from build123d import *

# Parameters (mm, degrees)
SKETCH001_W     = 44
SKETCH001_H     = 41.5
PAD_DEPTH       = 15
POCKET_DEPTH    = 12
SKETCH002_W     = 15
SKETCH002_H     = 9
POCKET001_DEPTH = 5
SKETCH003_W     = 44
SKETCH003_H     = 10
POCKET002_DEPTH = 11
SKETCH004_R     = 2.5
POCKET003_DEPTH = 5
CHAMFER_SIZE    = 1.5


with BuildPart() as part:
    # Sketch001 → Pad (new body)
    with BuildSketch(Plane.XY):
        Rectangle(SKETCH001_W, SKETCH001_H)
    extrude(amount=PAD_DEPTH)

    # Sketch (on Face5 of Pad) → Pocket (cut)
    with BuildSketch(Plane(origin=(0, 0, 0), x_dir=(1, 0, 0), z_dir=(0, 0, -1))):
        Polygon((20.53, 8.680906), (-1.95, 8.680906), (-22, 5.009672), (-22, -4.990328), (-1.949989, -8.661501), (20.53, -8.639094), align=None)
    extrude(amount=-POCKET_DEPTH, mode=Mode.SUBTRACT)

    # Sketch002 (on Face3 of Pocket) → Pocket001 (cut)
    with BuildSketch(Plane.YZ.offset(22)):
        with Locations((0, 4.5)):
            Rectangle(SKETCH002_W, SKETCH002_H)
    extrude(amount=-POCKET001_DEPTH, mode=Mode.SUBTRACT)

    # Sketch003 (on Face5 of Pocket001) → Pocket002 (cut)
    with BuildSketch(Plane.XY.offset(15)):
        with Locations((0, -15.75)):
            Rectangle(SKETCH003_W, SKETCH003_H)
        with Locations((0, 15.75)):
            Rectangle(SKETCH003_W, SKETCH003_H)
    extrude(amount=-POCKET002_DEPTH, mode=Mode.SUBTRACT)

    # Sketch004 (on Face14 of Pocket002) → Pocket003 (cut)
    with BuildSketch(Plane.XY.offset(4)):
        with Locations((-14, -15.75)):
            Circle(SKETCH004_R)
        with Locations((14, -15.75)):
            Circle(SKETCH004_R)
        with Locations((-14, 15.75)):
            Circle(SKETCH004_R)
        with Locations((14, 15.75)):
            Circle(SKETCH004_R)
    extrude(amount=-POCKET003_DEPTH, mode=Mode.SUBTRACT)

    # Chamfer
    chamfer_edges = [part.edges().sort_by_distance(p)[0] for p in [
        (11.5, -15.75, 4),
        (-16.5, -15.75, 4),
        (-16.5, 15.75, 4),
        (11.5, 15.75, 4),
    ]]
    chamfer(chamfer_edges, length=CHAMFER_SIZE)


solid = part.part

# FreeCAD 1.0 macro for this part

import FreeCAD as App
import Part
import Sketcher

V = App.Vector
Q = App.Units.Quantity


def edges_at(feature, points):
    """Names of the edges that pass closest to the given points."""
    edges = feature.Shape.Edges
    near = lambda p: min(range(len(edges)), key=lambda i: edges[i].distToShape(Part.Vertex(*p))[0])
    return sorted({f"Edge{near(p) + 1}" for p in points})


def add_polygon(sketch, points):
    """Adds a closed chain of lines whose ends are joined by coincident constraints."""
    first, n = sketch.GeometryCount, len(points)
    for a, b in zip(points, points[1:] + points[:1]):
        sketch.addGeometry(Part.LineSegment(App.Vector(*a, 0), App.Vector(*b, 0)), False)
    for i in range(n):
        sketch.addConstraint(Sketcher.Constraint("Coincident", first + i, 2, first + (i + 1) % n, 1))

doc = App.newDocument("Part")
body = doc.addObject("PartDesign::Body", "Body")

# Sketch on XY plane
sketch1 = doc.addObject("Sketcher::SketchObject", "Sketch")
body.addObject(sketch1)
sketch1.AttachmentSupport = (doc.XY_Plane, [""])
sketch1.MapMode = "FlatFace"
add_polygon(sketch1, [(-22, 21), (-22, -21), (22, -21), (22, 21)])  # lines 0-3
sketch1.addConstraint([
    Sketcher.Constraint("Vertical", 0),
    Sketcher.Constraint("Horizontal", 1),
    Sketcher.Constraint("Vertical", 2),
    Sketcher.Constraint("Horizontal", 3),
    Sketcher.Constraint("Symmetric", 0, 2, 2, 2, -1, 1),
    Sketcher.Constraint("DistanceX", 1, 1, 1, 2, Q("44 mm")),
    Sketcher.Constraint("DistanceY", 0, 2, 0, 1, Q("41.5 mm")),
])
pad1 = doc.addObject("PartDesign::Pad", "Pad")
body.addObject(pad1)
pad1.Profile = sketch1
pad1.Length = 15

# Sketch on XY plane
sketch2 = doc.addObject("Sketcher::SketchObject", "Sketch001")
body.addObject(sketch2)
sketch2.AttachmentSupport = (doc.XY_Plane, [""])
sketch2.MapMode = "FlatFace"
add_polygon(sketch2, [(21, -9), (-2, -9), (-22, -5), (-22, 5), (-2, 9), (21, 9)])  # lines 0-5
sketch2.addConstraint([
    Sketcher.Constraint("Horizontal", 0),
    Sketcher.Constraint("Vertical", 2),
    Sketcher.Constraint("Vertical", 5),
    Sketcher.Constraint("Equal", 1, 3),
    Sketcher.Constraint("DistanceY", 2, 1, 2, 2, Q("10 mm")),
    Sketcher.Constraint("DistanceX", 1, 2, -1, 1, Q("22 mm")),
    Sketcher.Constraint("DistanceX", 0, 2, 0, 1, Q("22.48 mm")),
    Sketcher.Constraint("DistanceY", 5, 2, 5, 1, Q("17.32 mm")),
    Sketcher.Constraint("Distance", 4, Q("22.48 mm")),
    Sketcher.Constraint("DistanceX", 0, 2, -1, 1, Q("1.95 mm")),
    Sketcher.Constraint("DistanceY", -1, 1, 3, 2, Q("8.661501 mm")),
    Sketcher.Constraint("Distance", 1, Q("20.383338 mm")),
])
pocket1 = doc.addObject("PartDesign::Pocket", "Pocket")
body.addObject(pocket1)
pocket1.Profile = sketch2
pocket1.Length = 12
pocket1.Reversed = True

# Sketch on YZ plane
sketch3 = doc.addObject("Sketcher::SketchObject", "Sketch002")
body.addObject(sketch3)
sketch3.AttachmentSupport = (doc.YZ_Plane, [""])
sketch3.MapMode = "FlatFace"
sketch3.AttachmentOffset = App.Placement(V(0, 0, 22), App.Rotation())
add_polygon(sketch3, [(-8, 9), (-8, 0), (8, 0), (8, 9)])  # lines 0-3
sketch3.addConstraint([
    Sketcher.Constraint("Vertical", 0),
    Sketcher.Constraint("Horizontal", 1),
    Sketcher.Constraint("Vertical", 2),
    Sketcher.Constraint("Horizontal", 3),
    Sketcher.Constraint("Symmetric", 0, 2, 1, 2, -1, 1),
    Sketcher.Constraint("DistanceX", 1, 1, 1, 2, Q("15 mm")),
    Sketcher.Constraint("DistanceY", 0, 2, 0, 1, Q("9 mm")),
])
pocket2 = doc.addObject("PartDesign::Pocket", "Pocket001")
body.addObject(pocket2)
pocket2.Profile = sketch3
pocket2.Length = 5

# Sketch on XY plane
sketch4 = doc.addObject("Sketcher::SketchObject", "Sketch003")
body.addObject(sketch4)
sketch4.AttachmentSupport = (doc.XY_Plane, [""])
sketch4.MapMode = "FlatFace"
sketch4.AttachmentOffset = App.Placement(V(0, 0, 15), App.Rotation())
add_polygon(sketch4, [(-22, -11), (-22, -21), (22, -21), (22, -11)])  # lines 0-3
add_polygon(sketch4, [(-22, 21), (-22, 11), (22, 11), (22, 21)])  # lines 4-7
sketch4.addConstraint([
    Sketcher.Constraint("Vertical", 0),
    Sketcher.Constraint("Horizontal", 1),
    Sketcher.Constraint("Vertical", 2),
    Sketcher.Constraint("Horizontal", 3),
    Sketcher.Constraint("Vertical", 4),
    Sketcher.Constraint("Horizontal", 5),
    Sketcher.Constraint("Vertical", 6),
    Sketcher.Constraint("Horizontal", 7),
    Sketcher.Constraint("Symmetric", 2, 2, 4, 2, -1, 1),
    Sketcher.Constraint("Symmetric", 0, 2, 6, 2, -1, 1),
    Sketcher.Constraint("Vertical", 3, 2, 4, 2),
    Sketcher.Constraint("DistanceX", 1, 1, 1, 2, Q("44 mm")),
    Sketcher.Constraint("DistanceY", 0, 2, 0, 1, Q("10 mm")),
    Sketcher.Constraint("DistanceY", 3, 2, 4, 2, Q("21.5 mm")),
])
pocket3 = doc.addObject("PartDesign::Pocket", "Pocket002")
body.addObject(pocket3)
pocket3.Profile = sketch4
pocket3.Length = 11

# Sketch on XY plane
sketch5 = doc.addObject("Sketcher::SketchObject", "Sketch004")
body.addObject(sketch5)
sketch5.AttachmentSupport = (doc.XY_Plane, [""])
sketch5.MapMode = "FlatFace"
sketch5.AttachmentOffset = App.Placement(V(0, 0, 4), App.Rotation())
sketch5.addGeometry([
    Part.Circle(V(-14, -15.8, 0), V(0, 0, 1), 2.5),
    Part.Circle(V(14, -15.8, 0), V(0, 0, 1), 2.5),
    Part.Circle(V(-14, 15.8, 0), V(0, 0, 1), 2.5),
    Part.Circle(V(14, 15.8, 0), V(0, 0, 1), 2.5),
], False)
sketch5.addConstraint([
    Sketcher.Constraint("Equal", 0, 1),
    Sketcher.Constraint("Equal", 1, 2),
    Sketcher.Constraint("Equal", 2, 3),
    Sketcher.Constraint("Symmetric", 1, 3, 2, 3, -1, 1),
    Sketcher.Constraint("Symmetric", 0, 3, 3, 3, -1, 1),
    Sketcher.Constraint("Symmetric", 0, 3, 1, 3, -2),
    Sketcher.Constraint("Diameter", 0, Q("5 mm")),
    Sketcher.Constraint("DistanceX", 0, 3, -1, 1, Q("14 mm")),
    Sketcher.Constraint("DistanceY", 0, 3, 2, 3, Q("31.5 mm")),
])
pocket4 = doc.addObject("PartDesign::Pocket", "Pocket003")
body.addObject(pocket4)
pocket4.Profile = sketch5
pocket4.Length = 5
doc.recompute()

chamfer = doc.addObject("PartDesign::Chamfer", "Chamfer")
body.addObject(chamfer)
chamfer.Base = (pocket4, edges_at(pocket4, [
    (11.5, -15.75, 4),
    (-16.5, -15.75, 4),
    (-16.5, 15.75, 4),
    (11.5, 15.75, 4),
]))
chamfer.Size = 1.5

doc.recompute()
